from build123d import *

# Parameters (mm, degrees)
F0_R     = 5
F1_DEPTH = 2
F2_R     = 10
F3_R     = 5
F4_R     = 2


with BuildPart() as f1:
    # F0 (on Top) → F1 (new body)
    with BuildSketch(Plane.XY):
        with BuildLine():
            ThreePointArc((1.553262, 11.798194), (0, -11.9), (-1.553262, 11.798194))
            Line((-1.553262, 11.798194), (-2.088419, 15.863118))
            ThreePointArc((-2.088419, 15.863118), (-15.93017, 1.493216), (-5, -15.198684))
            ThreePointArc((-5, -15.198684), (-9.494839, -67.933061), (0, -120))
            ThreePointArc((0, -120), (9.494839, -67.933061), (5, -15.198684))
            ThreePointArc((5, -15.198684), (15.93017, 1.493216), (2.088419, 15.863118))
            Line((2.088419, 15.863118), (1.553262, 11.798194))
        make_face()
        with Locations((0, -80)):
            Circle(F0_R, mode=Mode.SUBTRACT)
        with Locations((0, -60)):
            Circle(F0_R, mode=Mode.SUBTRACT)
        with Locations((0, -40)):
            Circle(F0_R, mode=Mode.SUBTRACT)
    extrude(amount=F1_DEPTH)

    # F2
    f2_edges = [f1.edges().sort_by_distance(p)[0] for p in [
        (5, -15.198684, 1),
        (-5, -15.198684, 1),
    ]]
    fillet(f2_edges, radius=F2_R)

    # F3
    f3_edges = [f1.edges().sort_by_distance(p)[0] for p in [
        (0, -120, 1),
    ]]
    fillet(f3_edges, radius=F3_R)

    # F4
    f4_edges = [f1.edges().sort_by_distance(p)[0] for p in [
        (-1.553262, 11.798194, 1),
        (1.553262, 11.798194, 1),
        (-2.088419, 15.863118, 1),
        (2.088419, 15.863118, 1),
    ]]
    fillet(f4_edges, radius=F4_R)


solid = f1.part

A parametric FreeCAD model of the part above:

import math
import FreeCAD as App
import Part
import Sketcher
from FreeCAD import Vector
Q = App.Units.Quantity


def edges_at(feature, points):
    """Names of the edges that pass closest to the given points."""
    edges = feature.Shape.Edges
    near = lambda p: min(range(len(edges)), key=lambda i: edges[i].distToShape(Part.Vertex(*p))[0])
    return sorted({f"Edge{near(p) + 1}" for p in points})

doc = App.newDocument("Part")
params = doc.addObject("Spreadsheet::Sheet", "Params")
for row, (alias, value) in enumerate([
    ("sketch1_diameter", "10 mm"),
    ("sketch1_radius", "16 mm"),
    ("sketch1_radius2", "200.000001 mm"),
    ("sketch1_radius3", "11.9 mm"),
    ("pad1_length", "2 mm"),
    ("fillet_radius", "10 mm"),
    ("fillet2_radius", "5 mm"),
    ("fillet3_radius", "2 mm"),
], start=1):
    params.set(f"A{row}", alias)
    params.set(f"B{row}", "=" + value)
    params.setAlias(f"B{row}", alias)

body = doc.addObject("PartDesign::Body", "Body")

sketch1 = body.newObject("Sketcher::SketchObject", "Sketch")
sketch1.AttachmentSupport = (doc.getObject("XY_Plane"), [""])
sketch1.MapMode = "FlatFace"
sketch1.addGeometry([
    Part.ArcOfCircle(Part.Circle(Vector(0, 0, 0), Vector(0, 0, 1), 11.9), math.radians(98), math.radians(442)),
    Part.LineSegment(Vector(-1.6, 11.8, 0), Vector(-2.1, 15.9, 0)),
    Part.ArcOfCircle(Part.Circle(Vector(0, 0, 0), Vector(0, 0, 1), 16), math.radians(97), math.radians(252)),
    Part.ArcOfCircle(Part.Circle(Vector(190.3, -58.4, 0), Vector(0, 0, 1), 200), math.radians(168), math.radians(198)),
    Part.ArcOfCircle(Part.Circle(Vector(-190.3, -58.4, 0), Vector(0, 0, 1), 200), math.radians(-18), math.radians(12)),
    Part.ArcOfCircle(Part.Circle(Vector(0, 0, 0), Vector(0, 0, 1), 16), math.radians(-72), math.radians(83)),
    Part.LineSegment(Vector(2.1, 15.9, 0), Vector(1.6, 11.8, 0)),
    Part.Circle(Vector(0, -80, 0), Vector(0, 0, 1), 5),
    Part.Circle(Vector(0, -60, 0), Vector(0, 0, 1), 5),
    Part.Circle(Vector(0, -40, 0), Vector(0, 0, 1), 5),
], False)
sketch1.addConstraint([
    Sketcher.Constraint("Coincident", 0, 1, 1, 1),
    Sketcher.Constraint("Coincident", 1, 2, 2, 1),
    Sketcher.Constraint("Coincident", 2, 2, 3, 1),
    Sketcher.Constraint("Coincident", 3, 2, 4, 1),
    Sketcher.Constraint("Coincident", 4, 2, 5, 1),
    Sketcher.Constraint("Coincident", 5, 2, 6, 1),
    Sketcher.Constraint("Coincident", 6, 2, 0, 2),
    Sketcher.Constraint("Coincident", 0, 3, -1, 1),
    Sketcher.Constraint("Coincident", 2, 3, -1, 1),
    Sketcher.Constraint("Coincident", 5, 3, -1, 1),
    Sketcher.Constraint("Equal", 3, 4),
    Sketcher.Constraint("Equal", 2, 5),
    Sketcher.Constraint("Equal", 7, 8),
    Sketcher.Constraint("Equal", 8, 9),
    Sketcher.Constraint("Symmetric", 3, 3, 4, 3, -2),
    Sketcher.Constraint("PointOnObject", 7, 3, -2),
    Sketcher.Constraint("PointOnObject", 8, 3, -2),
    Sketcher.Constraint("PointOnObject", 9, 3, -2),
    Sketcher.Constraint("Horizontal", 1, 2, 5, 2),
    Sketcher.Constraint("Horizontal", 0, 1, 6, 2),
    Sketcher.Constraint("Diameter", 7, 10.0),
    Sketcher.Constraint("Radius", 2, 16.0),
    Sketcher.Constraint("Radius", 3, 200.000001),
    Sketcher.Constraint("Radius", 0, 11.9),
    Sketcher.Constraint("DistanceY", 7, 3, -1, 1, 80.0),
    Sketcher.Constraint("DistanceY", 8, 3, -1, 1, 60.0),
    Sketcher.Constraint("DistanceY", 9, 3, -1, 1, 40.0),
    Sketcher.Constraint("DistanceX", 2, 2, -1, 1, 5.0),
    Sketcher.Constraint("DistanceY", 3, 2, -1, 1, 120.0),
    Sketcher.Constraint("Angle", 1, Q("97.499994 deg")),
    Sketcher.Constraint("DistanceX", 1, 2, -1, 1, 2.088419),
])
sketch1.setExpression("Constraints[20]", "Params.sketch1_diameter")
sketch1.setExpression("Constraints[21]", "Params.sketch1_radius")
sketch1.setExpression("Constraints[22]", "Params.sketch1_radius2")
sketch1.setExpression("Constraints[23]", "Params.sketch1_radius3")
pad1 = body.newObject("PartDesign::Pad", "Pad")
pad1.Profile = sketch1
pad1.setExpression("Length", "Params.pad1_length")
doc.recompute()

fillet = body.newObject("PartDesign::Fillet", "Fillet")
fillet.Base = (pad1, edges_at(pad1, [(5, -15.199, 1), (-5, -15.199, 1)]))
fillet.setExpression("Radius", "Params.fillet_radius")
doc.recompute()

fillet2 = body.newObject("PartDesign::Fillet", "Fillet001")
fillet2.Base = (fillet, edges_at(fillet, [(0, -120, 1)]))
fillet2.setExpression("Radius", "Params.fillet2_radius")
doc.recompute()

fillet3 = body.newObject("PartDesign::Fillet", "Fillet002")
fillet3.Base = (fillet2, edges_at(fillet2, [
    (-1.553, 11.798, 1),
    (1.553, 11.798, 1),
    (-2.088, 15.863, 1),
    (2.088, 15.863, 1),
]))
fillet3.setExpression("Radius", "Params.fillet3_radius")

doc.recompute()
